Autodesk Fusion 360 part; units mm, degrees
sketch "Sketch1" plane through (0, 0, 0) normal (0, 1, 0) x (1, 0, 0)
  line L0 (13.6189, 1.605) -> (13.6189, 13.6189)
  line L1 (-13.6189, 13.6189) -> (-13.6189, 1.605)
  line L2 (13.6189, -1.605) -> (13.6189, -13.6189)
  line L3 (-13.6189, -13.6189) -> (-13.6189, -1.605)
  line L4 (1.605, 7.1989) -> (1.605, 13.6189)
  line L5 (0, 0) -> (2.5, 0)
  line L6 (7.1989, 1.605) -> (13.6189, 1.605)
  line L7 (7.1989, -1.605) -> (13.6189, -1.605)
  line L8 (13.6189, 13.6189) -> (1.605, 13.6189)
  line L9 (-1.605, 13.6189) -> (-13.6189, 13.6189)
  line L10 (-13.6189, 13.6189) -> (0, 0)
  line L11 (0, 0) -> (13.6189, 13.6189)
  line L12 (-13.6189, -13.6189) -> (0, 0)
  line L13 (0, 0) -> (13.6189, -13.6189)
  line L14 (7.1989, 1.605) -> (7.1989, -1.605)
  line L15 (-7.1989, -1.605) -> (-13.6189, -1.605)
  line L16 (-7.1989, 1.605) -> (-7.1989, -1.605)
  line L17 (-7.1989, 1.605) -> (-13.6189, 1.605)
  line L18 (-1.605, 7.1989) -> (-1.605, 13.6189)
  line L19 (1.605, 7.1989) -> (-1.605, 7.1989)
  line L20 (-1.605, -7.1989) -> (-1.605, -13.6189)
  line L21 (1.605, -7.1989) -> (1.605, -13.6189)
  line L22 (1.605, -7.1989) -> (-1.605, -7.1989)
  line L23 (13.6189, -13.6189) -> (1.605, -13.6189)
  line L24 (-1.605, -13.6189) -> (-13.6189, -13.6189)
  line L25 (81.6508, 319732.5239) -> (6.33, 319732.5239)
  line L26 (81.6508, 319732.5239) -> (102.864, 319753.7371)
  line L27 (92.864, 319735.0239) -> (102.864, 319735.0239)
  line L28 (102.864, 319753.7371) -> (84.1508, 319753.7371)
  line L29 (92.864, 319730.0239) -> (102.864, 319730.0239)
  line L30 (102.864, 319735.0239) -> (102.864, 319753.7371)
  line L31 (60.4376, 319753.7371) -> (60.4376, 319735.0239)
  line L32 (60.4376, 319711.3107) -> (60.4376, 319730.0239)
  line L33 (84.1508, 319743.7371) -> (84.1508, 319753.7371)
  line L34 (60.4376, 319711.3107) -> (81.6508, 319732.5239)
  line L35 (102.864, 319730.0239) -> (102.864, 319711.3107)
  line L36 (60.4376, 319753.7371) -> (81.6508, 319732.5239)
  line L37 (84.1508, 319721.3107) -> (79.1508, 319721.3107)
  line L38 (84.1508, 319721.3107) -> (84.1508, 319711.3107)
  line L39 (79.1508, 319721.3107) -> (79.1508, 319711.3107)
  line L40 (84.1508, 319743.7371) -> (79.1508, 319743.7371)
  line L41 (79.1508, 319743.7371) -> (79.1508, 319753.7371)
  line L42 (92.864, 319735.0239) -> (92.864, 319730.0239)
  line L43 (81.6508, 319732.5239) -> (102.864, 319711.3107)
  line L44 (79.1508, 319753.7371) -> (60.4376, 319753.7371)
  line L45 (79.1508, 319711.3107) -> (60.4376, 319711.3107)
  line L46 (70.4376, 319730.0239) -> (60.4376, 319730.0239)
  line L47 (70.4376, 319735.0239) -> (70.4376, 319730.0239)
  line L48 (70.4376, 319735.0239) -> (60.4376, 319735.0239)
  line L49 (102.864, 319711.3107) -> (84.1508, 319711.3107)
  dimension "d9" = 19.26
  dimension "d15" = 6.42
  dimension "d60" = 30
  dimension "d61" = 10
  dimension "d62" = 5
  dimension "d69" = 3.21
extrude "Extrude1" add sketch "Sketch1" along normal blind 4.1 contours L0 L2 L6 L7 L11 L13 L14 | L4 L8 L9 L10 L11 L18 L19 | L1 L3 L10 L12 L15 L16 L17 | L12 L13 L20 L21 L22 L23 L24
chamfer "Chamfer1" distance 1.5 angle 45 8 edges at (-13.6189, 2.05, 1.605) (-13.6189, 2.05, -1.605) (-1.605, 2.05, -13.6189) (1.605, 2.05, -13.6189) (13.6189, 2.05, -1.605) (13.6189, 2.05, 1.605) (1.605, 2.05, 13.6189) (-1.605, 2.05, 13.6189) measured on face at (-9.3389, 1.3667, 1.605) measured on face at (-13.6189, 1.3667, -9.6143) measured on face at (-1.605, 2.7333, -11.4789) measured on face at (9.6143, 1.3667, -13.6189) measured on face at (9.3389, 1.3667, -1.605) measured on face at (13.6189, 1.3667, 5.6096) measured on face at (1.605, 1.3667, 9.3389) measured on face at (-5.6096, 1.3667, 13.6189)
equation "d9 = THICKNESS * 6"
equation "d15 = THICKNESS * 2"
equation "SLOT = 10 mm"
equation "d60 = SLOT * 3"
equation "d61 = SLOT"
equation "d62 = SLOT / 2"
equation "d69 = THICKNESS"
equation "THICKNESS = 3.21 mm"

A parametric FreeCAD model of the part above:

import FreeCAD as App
import Part
import Sketcher
from FreeCAD import Vector
Q = App.Units.Quantity


def edges_at(feature, points):
    """Names of the edges that pass closest to the given points."""
    edges = feature.Shape.Edges
    near = lambda p: min(range(len(edges)), key=lambda i: edges[i].distToShape(Part.Vertex(*p))[0])
    return sorted({f"Edge{near(p) + 1}" for p in points})

doc = App.newDocument("Part")
body = doc.addObject("PartDesign::Body", "Body")

sketch1 = body.newObject("Sketcher::SketchObject", "Sketch")
sketch1.AttachmentSupport = (doc.getObject("XZ_Plane"), [""])
sketch1.MapMode = "FlatFace"
sketch1.addGeometry([
    Part.LineSegment(Vector(7.2, -1.6, 0), Vector(13.6, -1.6, 0)),
    Part.LineSegment(Vector(13.6, -1.6, 0), Vector(13.6, -13.6, 0)),
    Part.LineSegment(Vector(13.6, -13.6, 0), Vector(1.6, -13.6, 0)),
    Part.LineSegment(Vector(1.6, -13.6, 0), Vector(1.6, -7.2, 0)),
    Part.LineSegment(Vector(1.6, -7.2, 0), Vector(-1.6, -7.2, 0)),
    Part.LineSegment(Vector(-1.6, -7.2, 0), Vector(-1.6, -13.6, 0)),
    Part.LineSegment(Vector(-1.6, -13.6, 0), Vector(-13.6, -13.6, 0)),
    Part.LineSegment(Vector(-13.6, -13.6, 0), Vector(-13.6, -1.6, 0)),
    Part.LineSegment(Vector(-13.6, -1.6, 0), Vector(-7.2, -1.6, 0)),
    Part.LineSegment(Vector(-7.2, -1.6, 0), Vector(-7.2, 1.6, 0)),
    Part.LineSegment(Vector(-7.2, 1.6, 0), Vector(-13.6, 1.6, 0)),
    Part.LineSegment(Vector(-13.6, 1.6, 0), Vector(-13.6, 13.6, 0)),
    Part.LineSegment(Vector(-13.6, 13.6, 0), Vector(-1.6, 13.6, 0)),
    Part.LineSegment(Vector(-1.6, 13.6, 0), Vector(-1.6, 7.2, 0)),
    Part.LineSegment(Vector(-1.6, 7.2, 0), Vector(1.6, 7.2, 0)),
    Part.LineSegment(Vector(1.6, 7.2, 0), Vector(1.6, 13.6, 0)),
    Part.LineSegment(Vector(1.6, 13.6, 0), Vector(13.6, 13.6, 0)),
    Part.LineSegment(Vector(13.6, 13.6, 0), Vector(13.6, 1.6, 0)),
    Part.LineSegment(Vector(13.6, 1.6, 0), Vector(7.2, 1.6, 0)),
    Part.LineSegment(Vector(7.2, 1.6, 0), Vector(7.2, -1.6, 0)),
], False)
sketch1.addConstraint([
    Sketcher.Constraint("Coincident", 0, 2, 1, 1),
    Sketcher.Constraint("Coincident", 1, 2, 2, 1),
    Sketcher.Constraint("Coincident", 2, 2, 3, 1),
    Sketcher.Constraint("Coincident", 3, 2, 4, 1),
    Sketcher.Constraint("Coincident", 4, 2, 5, 1),
    Sketcher.Constraint("Coincident", 5, 2, 6, 1),
    Sketcher.Constraint("Coincident", 6, 2, 7, 1),
    Sketcher.Constraint("Coincident", 7, 2, 8, 1),
    Sketcher.Constraint("Coincident", 8, 2, 9, 1),
    Sketcher.Constraint("Coincident", 9, 2, 10, 1),
    Sketcher.Constraint("Coincident", 10, 2, 11, 1),
    Sketcher.Constraint("Coincident", 11, 2, 12, 1),
    Sketcher.Constraint("Coincident", 12, 2, 13, 1),
    Sketcher.Constraint("Coincident", 13, 2, 14, 1),
    Sketcher.Constraint("Coincident", 14, 2, 15, 1),
    Sketcher.Constraint("Coincident", 15, 2, 16, 1),
    Sketcher.Constraint("Coincident", 16, 2, 17, 1),
    Sketcher.Constraint("Coincident", 17, 2, 18, 1),
    Sketcher.Constraint("Coincident", 18, 2, 19, 1),
    Sketcher.Constraint("Coincident", 19, 2, 0, 1),
    Sketcher.Constraint("Horizontal", 0),
    Sketcher.Constraint("Vertical", 1),
    Sketcher.Constraint("Horizontal", 2),
    Sketcher.Constraint("Vertical", 3),
    Sketcher.Constraint("Horizontal", 4),
    Sketcher.Constraint("Vertical", 5),
    Sketcher.Constraint("Horizontal", 6),
    Sketcher.Constraint("Vertical", 7),
    Sketcher.Constraint("Horizontal", 8),
    Sketcher.Constraint("Vertical", 9),
    Sketcher.Constraint("Horizontal", 10),
    Sketcher.Constraint("Vertical", 11),
    Sketcher.Constraint("Horizontal", 12),
    Sketcher.Constraint("Vertical", 13),
    Sketcher.Constraint("Horizontal", 14),
    Sketcher.Constraint("Vertical", 15),
    Sketcher.Constraint("Horizontal", 16),
    Sketcher.Constraint("Vertical", 17),
    Sketcher.Constraint("Horizontal", 18),
    Sketcher.Constraint("Vertical", 19),
    Sketcher.Constraint("Symmetric", 0, 2, 10, 2, -1, 1),
    Sketcher.Constraint("Symmetric", 2, 2, 12, 2, -1, 1),
    Sketcher.Constraint("Symmetric", 4, 2, 14, 2, -1, 1),
    Sketcher.Constraint("Symmetric", 6, 2, 16, 2, -1, 1),
    Sketcher.Constraint("Symmetric", 8, 2, 18, 2, -1, 1),
    Sketcher.Constraint("Symmetric", 2, 2, 5, 2, -2),
    Sketcher.Constraint("Symmetric", 0, 2, 7, 2, -2),
    Sketcher.Constraint("Equal", 16, 1),
    Sketcher.Constraint("Equal", 18, 3),
    Sketcher.Constraint("Equal", 14, 9),
    Sketcher.Constraint("DistanceX", 0, 1, 0, 2, Q("6.42 mm")),
    Sketcher.Constraint("DistanceX", 4, 2, 4, 1, Q("3.21 mm")),
    Sketcher.Constraint("DistanceX", 2, 2, 2, 1, Q("12.014 mm")),
])
pad1 = body.newObject("PartDesign::Pad", "Pad")
pad1.Profile = sketch1
pad1.Length = 4.1
pad1.Reversed = True
doc.recompute()

chamfer = body.newObject("PartDesign::Chamfer", "Chamfer")
chamfer.Base = (pad1, edges_at(pad1, [
    (-13.619, 2.05, 1.605),
    (-13.619, 2.05, -1.605),
    (-1.605, 2.05, -13.619),
    (1.605, 2.05, -13.619),
    (13.619, 2.05, -1.605),
    (13.619, 2.05, 1.605),
    (1.605, 2.05, 13.619),
    (-1.605, 2.05, 13.619),
]))
chamfer.Size = 1.5

doc.recompute()
